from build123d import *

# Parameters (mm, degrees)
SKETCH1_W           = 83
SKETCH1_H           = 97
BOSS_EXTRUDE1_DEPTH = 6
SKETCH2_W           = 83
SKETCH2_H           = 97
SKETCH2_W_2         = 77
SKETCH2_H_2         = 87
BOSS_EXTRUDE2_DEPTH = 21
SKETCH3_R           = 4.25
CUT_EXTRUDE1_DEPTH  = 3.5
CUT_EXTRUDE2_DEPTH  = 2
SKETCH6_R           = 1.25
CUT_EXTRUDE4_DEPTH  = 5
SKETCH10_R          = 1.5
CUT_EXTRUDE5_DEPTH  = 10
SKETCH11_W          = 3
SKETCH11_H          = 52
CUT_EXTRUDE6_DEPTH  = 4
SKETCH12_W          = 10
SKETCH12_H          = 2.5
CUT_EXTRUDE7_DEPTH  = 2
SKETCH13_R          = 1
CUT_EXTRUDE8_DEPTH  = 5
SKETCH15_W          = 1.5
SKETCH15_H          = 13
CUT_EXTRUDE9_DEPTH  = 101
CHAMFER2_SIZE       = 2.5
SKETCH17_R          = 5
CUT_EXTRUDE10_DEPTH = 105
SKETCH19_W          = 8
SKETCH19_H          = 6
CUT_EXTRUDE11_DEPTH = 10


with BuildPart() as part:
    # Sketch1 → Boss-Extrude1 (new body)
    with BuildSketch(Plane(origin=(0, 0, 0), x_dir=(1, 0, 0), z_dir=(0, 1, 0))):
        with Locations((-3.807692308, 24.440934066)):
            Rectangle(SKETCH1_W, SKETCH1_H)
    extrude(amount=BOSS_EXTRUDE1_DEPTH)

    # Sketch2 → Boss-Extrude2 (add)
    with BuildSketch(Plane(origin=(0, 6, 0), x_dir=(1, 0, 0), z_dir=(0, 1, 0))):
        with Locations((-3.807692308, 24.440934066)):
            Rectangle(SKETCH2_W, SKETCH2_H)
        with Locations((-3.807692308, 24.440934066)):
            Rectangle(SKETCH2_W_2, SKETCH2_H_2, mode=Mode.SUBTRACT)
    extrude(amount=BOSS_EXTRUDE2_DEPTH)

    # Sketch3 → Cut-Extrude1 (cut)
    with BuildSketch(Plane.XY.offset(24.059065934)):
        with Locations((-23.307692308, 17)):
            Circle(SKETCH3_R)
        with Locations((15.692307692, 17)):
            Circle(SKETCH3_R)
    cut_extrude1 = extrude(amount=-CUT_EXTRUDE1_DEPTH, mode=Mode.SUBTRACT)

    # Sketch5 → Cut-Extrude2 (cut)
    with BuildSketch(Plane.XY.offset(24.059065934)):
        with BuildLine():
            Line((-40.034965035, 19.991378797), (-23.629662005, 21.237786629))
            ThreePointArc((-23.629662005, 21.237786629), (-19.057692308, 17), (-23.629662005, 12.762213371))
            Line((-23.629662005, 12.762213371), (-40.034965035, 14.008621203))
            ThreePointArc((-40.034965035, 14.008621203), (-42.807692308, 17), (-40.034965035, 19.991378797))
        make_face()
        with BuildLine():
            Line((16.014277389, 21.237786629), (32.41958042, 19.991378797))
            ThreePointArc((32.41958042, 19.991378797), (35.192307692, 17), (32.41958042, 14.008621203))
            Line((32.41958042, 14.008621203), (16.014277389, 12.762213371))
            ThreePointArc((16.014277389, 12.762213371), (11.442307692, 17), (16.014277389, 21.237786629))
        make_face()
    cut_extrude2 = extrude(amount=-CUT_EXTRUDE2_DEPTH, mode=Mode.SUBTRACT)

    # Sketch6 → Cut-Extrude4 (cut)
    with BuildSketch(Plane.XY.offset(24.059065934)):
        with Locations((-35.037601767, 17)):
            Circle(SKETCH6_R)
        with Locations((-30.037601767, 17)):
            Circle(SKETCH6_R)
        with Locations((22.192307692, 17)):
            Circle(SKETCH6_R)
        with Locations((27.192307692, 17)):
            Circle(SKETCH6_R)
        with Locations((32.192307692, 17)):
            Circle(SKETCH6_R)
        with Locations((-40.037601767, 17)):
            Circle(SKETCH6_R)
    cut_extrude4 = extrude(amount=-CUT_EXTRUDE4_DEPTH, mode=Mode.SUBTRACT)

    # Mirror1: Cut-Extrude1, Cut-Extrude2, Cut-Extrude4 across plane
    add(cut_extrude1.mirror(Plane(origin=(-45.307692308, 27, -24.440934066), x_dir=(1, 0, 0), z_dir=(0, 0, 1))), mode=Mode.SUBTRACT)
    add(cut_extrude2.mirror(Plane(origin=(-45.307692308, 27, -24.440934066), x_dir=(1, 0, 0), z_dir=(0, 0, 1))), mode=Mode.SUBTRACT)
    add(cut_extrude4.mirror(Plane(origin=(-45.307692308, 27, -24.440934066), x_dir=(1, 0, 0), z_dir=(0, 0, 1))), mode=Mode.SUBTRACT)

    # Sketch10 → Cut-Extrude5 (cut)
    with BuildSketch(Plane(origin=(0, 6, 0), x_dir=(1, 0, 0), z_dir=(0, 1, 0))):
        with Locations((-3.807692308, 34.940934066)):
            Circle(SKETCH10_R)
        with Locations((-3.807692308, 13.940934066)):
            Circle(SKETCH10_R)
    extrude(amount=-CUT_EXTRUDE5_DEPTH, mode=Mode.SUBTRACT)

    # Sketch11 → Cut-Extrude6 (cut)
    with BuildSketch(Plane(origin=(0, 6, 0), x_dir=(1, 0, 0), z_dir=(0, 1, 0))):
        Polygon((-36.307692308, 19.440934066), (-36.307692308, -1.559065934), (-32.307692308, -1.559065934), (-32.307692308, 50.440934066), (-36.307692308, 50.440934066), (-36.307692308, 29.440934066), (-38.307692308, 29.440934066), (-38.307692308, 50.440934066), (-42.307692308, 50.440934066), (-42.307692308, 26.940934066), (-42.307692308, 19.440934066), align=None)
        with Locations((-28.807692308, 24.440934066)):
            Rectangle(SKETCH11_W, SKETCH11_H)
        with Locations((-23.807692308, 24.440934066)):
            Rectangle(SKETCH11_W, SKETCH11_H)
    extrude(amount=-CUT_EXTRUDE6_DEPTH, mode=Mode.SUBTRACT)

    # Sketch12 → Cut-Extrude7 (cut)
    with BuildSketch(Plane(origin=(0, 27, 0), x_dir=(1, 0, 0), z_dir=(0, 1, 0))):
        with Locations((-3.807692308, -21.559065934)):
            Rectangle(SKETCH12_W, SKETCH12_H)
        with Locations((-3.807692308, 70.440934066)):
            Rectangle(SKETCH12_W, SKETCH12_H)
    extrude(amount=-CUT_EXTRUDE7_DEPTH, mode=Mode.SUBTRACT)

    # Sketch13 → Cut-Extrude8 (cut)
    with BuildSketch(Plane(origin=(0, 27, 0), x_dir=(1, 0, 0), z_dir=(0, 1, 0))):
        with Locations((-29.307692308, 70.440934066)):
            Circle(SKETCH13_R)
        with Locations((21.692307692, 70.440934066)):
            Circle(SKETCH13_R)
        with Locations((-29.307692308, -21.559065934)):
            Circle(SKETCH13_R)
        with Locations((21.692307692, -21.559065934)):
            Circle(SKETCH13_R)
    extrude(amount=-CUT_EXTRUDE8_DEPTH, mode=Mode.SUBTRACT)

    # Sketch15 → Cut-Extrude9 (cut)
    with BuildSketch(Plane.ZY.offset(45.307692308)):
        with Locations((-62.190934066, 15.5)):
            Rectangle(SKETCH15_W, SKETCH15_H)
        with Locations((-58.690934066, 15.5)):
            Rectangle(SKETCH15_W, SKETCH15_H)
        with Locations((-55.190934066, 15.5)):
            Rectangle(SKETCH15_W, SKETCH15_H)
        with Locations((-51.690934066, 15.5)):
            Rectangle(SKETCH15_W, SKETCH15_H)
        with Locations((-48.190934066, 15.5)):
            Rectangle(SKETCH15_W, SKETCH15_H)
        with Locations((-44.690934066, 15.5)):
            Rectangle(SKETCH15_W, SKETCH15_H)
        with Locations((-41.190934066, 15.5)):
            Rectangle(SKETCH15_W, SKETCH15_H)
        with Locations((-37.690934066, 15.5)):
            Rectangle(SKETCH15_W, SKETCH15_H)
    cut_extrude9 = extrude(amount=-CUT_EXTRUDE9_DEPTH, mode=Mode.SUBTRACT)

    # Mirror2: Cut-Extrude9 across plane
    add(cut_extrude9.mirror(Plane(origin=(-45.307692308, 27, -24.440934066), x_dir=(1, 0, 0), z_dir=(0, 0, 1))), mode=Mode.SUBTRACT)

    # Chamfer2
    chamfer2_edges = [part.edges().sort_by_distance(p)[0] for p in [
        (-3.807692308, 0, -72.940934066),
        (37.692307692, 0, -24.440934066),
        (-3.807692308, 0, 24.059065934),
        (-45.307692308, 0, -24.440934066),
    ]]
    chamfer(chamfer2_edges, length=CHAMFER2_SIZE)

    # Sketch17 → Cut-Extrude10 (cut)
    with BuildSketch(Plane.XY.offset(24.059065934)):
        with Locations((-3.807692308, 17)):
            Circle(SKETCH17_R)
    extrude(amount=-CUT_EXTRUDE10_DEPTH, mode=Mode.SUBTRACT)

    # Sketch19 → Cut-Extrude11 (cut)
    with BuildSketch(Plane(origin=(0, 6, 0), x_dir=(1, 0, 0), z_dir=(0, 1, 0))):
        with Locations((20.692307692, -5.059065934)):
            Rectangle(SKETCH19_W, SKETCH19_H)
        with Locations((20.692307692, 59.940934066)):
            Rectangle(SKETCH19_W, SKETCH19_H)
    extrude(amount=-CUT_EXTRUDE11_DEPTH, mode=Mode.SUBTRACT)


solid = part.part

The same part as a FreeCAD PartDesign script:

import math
import FreeCAD as App
import Part
import Sketcher
from FreeCAD import Vector


def edges_at(feature, points):
    """Names of the edges that pass closest to the given points."""
    edges = feature.Shape.Edges
    near = lambda p: min(range(len(edges)), key=lambda i: edges[i].distToShape(Part.Vertex(*p))[0])
    return sorted({f"Edge{near(p) + 1}" for p in points})


def add_polygon(sketch, points):
    """Adds a closed chain of lines whose ends are joined by coincident constraints."""
    first, n = sketch.GeometryCount, len(points)
    for a, b in zip(points, points[1:] + points[:1]):
        sketch.addGeometry(Part.LineSegment(App.Vector(*a, 0), App.Vector(*b, 0)), False)
    for i in range(n):
        sketch.addConstraint(Sketcher.Constraint("Coincident", first + i, 2, first + (i + 1) % n, 1))

doc = App.newDocument("Part")
params = doc.addObject("Spreadsheet::Sheet", "Params")
for row, (alias, value) in enumerate([
    ("sketch1_width", "83 mm"),
    ("sketch1_height", "97 mm"),
    ("pad1_length", "6 mm"),
    ("sketch2_width", "83 mm"),
    ("sketch2_width2", "77 mm"),
    ("sketch2_height", "97 mm"),
    ("sketch2_height2", "87 mm"),
    ("pad2_length", "21 mm"),
    ("sketch3_diameter", "8.5 mm"),
    ("pocket1_length", "3.5 mm"),
    ("sketch4_radius", "3 mm"),
    ("sketch4_radius2", "4.25 mm"),
    ("pocket2_length", "2 mm"),
    ("sketch5_diameter", "2.5 mm"),
    ("pocket3_length", "5 mm"),
    ("sketch6_diameter", "3 mm"),
    ("pocket4_length", "10 mm"),
    ("sketch7_width", "4 mm"),
    ("sketch7_width2", "2 mm"),
    ("sketch7_width3", "3 mm"),
    ("sketch7_height", "21 mm"),
    ("sketch7_height2", "52 mm"),
    ("pocket5_length", "4 mm"),
    ("sketch8_width", "10 mm"),
    ("sketch8_height", "2.5 mm"),
    ("pocket6_length", "2 mm"),
    ("sketch9_diameter", "2 mm"),
    ("pocket7_length", "5 mm"),
    ("sketch10_width", "13 mm"),
    ("sketch10_height", "1.5 mm"),
    ("pocket8_length", "101 mm"),
    ("chamfer_size", "2.5 mm"),
    ("sketch11_diameter", "10 mm"),
    ("pocket9_length", "105 mm"),
    ("sketch12_width", "8 mm"),
    ("sketch12_height", "6 mm"),
    ("pocket10_length", "10 mm"),
], start=1):
    params.set(f"A{row}", alias)
    params.set(f"B{row}", "=" + value)
    params.setAlias(f"B{row}", alias)

body = doc.addObject("PartDesign::Body", "Body")

sketch1 = body.newObject("Sketcher::SketchObject", "Sketch")
sketch1.AttachmentSupport = (doc.getObject("XZ_Plane"), [""])
sketch1.MapMode = "FlatFace"
add_polygon(sketch1, [(-45, -73), (-45, 24), (38, 24), (38, -73)])
sketch1.addConstraint(Sketcher.Constraint("Vertical", 0))
sketch1.addConstraint(Sketcher.Constraint("Horizontal", 1))
sketch1.addConstraint(Sketcher.Constraint("Vertical", 2))
sketch1.addConstraint(Sketcher.Constraint("Horizontal", 3))
sketch1.addConstraint(Sketcher.Constraint("DistanceX", 1, 1, 1, 2, 83.0))
sketch1.addConstraint(Sketcher.Constraint("DistanceY", 0, 1, 0, 2, 97.0))
sketch1.addConstraint(Sketcher.Constraint("DistanceX", 0, 2, -1, 1, 45.307692))
sketch1.addConstraint(Sketcher.Constraint("DistanceY", -1, 1, 0, 2, 24.059066))
sketch1.setExpression("Constraints[8]", "Params.sketch1_width")
sketch1.setExpression("Constraints[9]", "Params.sketch1_height")
pad1 = body.newObject("PartDesign::Pad", "Pad")
pad1.Profile = sketch1
pad1.setExpression("Length", "Params.pad1_length")
pad1.Reversed = True

sketch2 = body.newObject("Sketcher::SketchObject", "Sketch001")
sketch2.AttachmentSupport = (doc.getObject("XZ_Plane"), [""])
sketch2.MapMode = "FlatFace"
sketch2.AttachmentOffset = App.Placement(Vector(0, 0, -6), App.Rotation())
add_polygon(sketch2, [(-45, -73), (-45, 24), (38, 24), (38, -73)])
add_polygon(sketch2, [(35, 19), (-42, 19), (-42, -68), (35, -68)])
sketch2.addConstraint(Sketcher.Constraint("Vertical", 0))
sketch2.addConstraint(Sketcher.Constraint("Horizontal", 1))
sketch2.addConstraint(Sketcher.Constraint("Vertical", 2))
sketch2.addConstraint(Sketcher.Constraint("Horizontal", 3))
sketch2.addConstraint(Sketcher.Constraint("Horizontal", 4))
sketch2.addConstraint(Sketcher.Constraint("Vertical", 5))
sketch2.addConstraint(Sketcher.Constraint("Horizontal", 6))
sketch2.addConstraint(Sketcher.Constraint("Vertical", 7))
sketch2.addConstraint(Sketcher.Constraint("DistanceX", 1, 1, 1, 2, 83.0))
sketch2.addConstraint(Sketcher.Constraint("DistanceX", 4, 2, 4, 1, 77.0))
sketch2.addConstraint(Sketcher.Constraint("DistanceY", 0, 1, 0, 2, 97.0))
sketch2.addConstraint(Sketcher.Constraint("DistanceY", 5, 2, 5, 1, 87.0))
sketch2.addConstraint(Sketcher.Constraint("DistanceX", 0, 2, 4, 2, 3.0))
sketch2.addConstraint(Sketcher.Constraint("DistanceY", 4, 2, 0, 2, 5.0))
sketch2.addConstraint(Sketcher.Constraint("DistanceX", 0, 2, -1, 1, 45.307692))
sketch2.addConstraint(Sketcher.Constraint("DistanceY", -1, 1, 0, 2, 24.059066))
sketch2.setExpression("Constraints[16]", "Params.sketch2_width")
sketch2.setExpression("Constraints[17]", "Params.sketch2_width2")
sketch2.setExpression("Constraints[18]", "Params.sketch2_height")
sketch2.setExpression("Constraints[19]", "Params.sketch2_height2")
pad2 = body.newObject("PartDesign::Pad", "Pad001")
pad2.Profile = sketch2
pad2.setExpression("Length", "Params.pad2_length")
pad2.Reversed = True

sketch3 = body.newObject("Sketcher::SketchObject", "Sketch002")
sketch3.AttachmentSupport = (doc.getObject("XY_Plane"), [""])
sketch3.MapMode = "FlatFace"
sketch3.AttachmentOffset = App.Placement(Vector(0, 0, 24.059066), App.Rotation())
sketch3.addGeometry(Part.Circle(Vector(-23.3, 17, 0), Vector(0, 0, 1), 4.2), False)
sketch3.addGeometry(Part.Circle(Vector(15.7, 17, 0), Vector(0, 0, 1), 4.2), False)
sketch3.addConstraint(Sketcher.Constraint("Equal", 0, 1))
sketch3.addConstraint(Sketcher.Constraint("Horizontal", 0, 3, 1, 3))
sketch3.addConstraint(Sketcher.Constraint("Diameter", 0, 8.5))
sketch3.addConstraint(Sketcher.Constraint("DistanceY", -1, 1, 0, 3, 17.0))
sketch3.addConstraint(Sketcher.Constraint("DistanceX", 0, 3, 1, 3, 39.0))
sketch3.addConstraint(Sketcher.Constraint("DistanceX", 0, 3, -1, 1, 23.307692))
sketch3.setExpression("Constraints[2]", "Params.sketch3_diameter")
pocket1 = body.newObject("PartDesign::Pocket", "Pocket")
pocket1.Profile = sketch3
pocket1.setExpression("Length", "Params.pocket1_length")

sketch4 = body.newObject("Sketcher::SketchObject", "Sketch003")
sketch4.AttachmentSupport = (doc.getObject("XY_Plane"), [""])
sketch4.MapMode = "FlatFace"
sketch4.AttachmentOffset = App.Placement(Vector(0, 0, 24.059066), App.Rotation())
sketch4.addGeometry(Part.LineSegment(Vector(-23.6, 21.2, 0), Vector(-40, 20, 0)), False)
sketch4.addGeometry(Part.ArcOfCircle(Part.Circle(Vector(-39.8, 17, 0), Vector(0, 0, 1), 3), math.radians(94), math.radians(266)), False)
sketch4.addGeometry(Part.LineSegment(Vector(-40, 14, 0), Vector(-23.6, 12.8, 0)), False)
sketch4.addGeometry(Part.ArcOfCircle(Part.Circle(Vector(-23.3, 17, 0), Vector(0, 0, 1), 4.2), math.radians(-94), math.radians(94)), False)
sketch4.addGeometry(Part.LineSegment(Vector(32.4, 20, 0), Vector(16, 21.2, 0)), False)
sketch4.addGeometry(Part.ArcOfCircle(Part.Circle(Vector(15.7, 17, 0), Vector(0, 0, 1), 4.2), math.radians(86), math.radians(274)), False)
sketch4.addGeometry(Part.LineSegment(Vector(16, 12.8, 0), Vector(32.4, 14, 0)), False)
sketch4.addGeometry(Part.ArcOfCircle(Part.Circle(Vector(32.2, 17, 0), Vector(0, 0, 1), 3), math.radians(-86), math.radians(86)), False)
sketch4.addConstraint(Sketcher.Constraint("Tangent", 0, 2, 1, 1))
sketch4.addConstraint(Sketcher.Constraint("Tangent", 1, 2, 2, 1))
sketch4.addConstraint(Sketcher.Constraint("Tangent", 2, 2, 3, 1))
sketch4.addConstraint(Sketcher.Constraint("Tangent", 3, 2, 0, 1))
sketch4.addConstraint(Sketcher.Constraint("Tangent", 4, 2, 5, 1))
sketch4.addConstraint(Sketcher.Constraint("Tangent", 5, 2, 6, 1))
sketch4.addConstraint(Sketcher.Constraint("Tangent", 6, 2, 7, 1))
sketch4.addConstraint(Sketcher.Constraint("Tangent", 7, 2, 4, 1))
sketch4.addConstraint(Sketcher.Constraint("Equal", 3, 5))
sketch4.addConstraint(Sketcher.Constraint("Equal", 1, 7))
sketch4.addConstraint(Sketcher.Constraint("Parallel", 2, 4))
sketch4.addConstraint(Sketcher.Constraint("Parallel", 0, 6))
sketch4.addConstraint(Sketcher.Constraint("Horizontal", 1, 3, 3, 3))
sketch4.addConstraint(Sketcher.Constraint("Horizontal", 3, 3, 5, 3))
sketch4.addConstraint(Sketcher.Constraint("Radius", 1, 3.0))
sketch4.addConstraint(Sketcher.Constraint("Radius", 3, 4.25))
sketch4.addConstraint(Sketcher.Constraint("DistanceY", -1, 1, 1, 3, 17.0))
sketch4.addConstraint(Sketcher.Constraint("DistanceX", 3, 3, 5, 3, 39.0))
sketch4.addConstraint(Sketcher.Constraint("DistanceX", 1, 3, 7, 3, 72.0))
sketch4.addConstraint(Sketcher.Constraint("DistanceX", -1, 1, 6, 2, 32.41958))
sketch4.setExpression("Constraints[14]", "Params.sketch4_radius")
sketch4.setExpression("Constraints[15]", "Params.sketch4_radius2")
pocket2 = body.newObject("PartDesign::Pocket", "Pocket001")
pocket2.Profile = sketch4
pocket2.setExpression("Length", "Params.pocket2_length")

sketch5 = body.newObject("Sketcher::SketchObject", "Sketch004")
sketch5.AttachmentSupport = (doc.getObject("XY_Plane"), [""])
sketch5.MapMode = "FlatFace"
sketch5.AttachmentOffset = App.Placement(Vector(0, 0, 24.059066), App.Rotation())
sketch5.addGeometry(Part.Circle(Vector(-35, 17, 0), Vector(0, 0, 1), 1.2), False)
sketch5.addGeometry(Part.Circle(Vector(-30, 17, 0), Vector(0, 0, 1), 1.2), False)
sketch5.addGeometry(Part.Circle(Vector(22.2, 17, 0), Vector(0, 0, 1), 1.2), False)
sketch5.addGeometry(Part.Circle(Vector(27.2, 17, 0), Vector(0, 0, 1), 1.2), False)
sketch5.addGeometry(Part.Circle(Vector(32.2, 17, 0), Vector(0, 0, 1), 1.2), False)
sketch5.addGeometry(Part.Circle(Vector(-40, 17, 0), Vector(0, 0, 1), 1.2), False)
sketch5.addConstraint(Sketcher.Constraint("Equal", 0, 1))
sketch5.addConstraint(Sketcher.Constraint("Equal", 1, 2))
sketch5.addConstraint(Sketcher.Constraint("Equal", 2, 3))
sketch5.addConstraint(Sketcher.Constraint("Equal", 3, 4))
sketch5.addConstraint(Sketcher.Constraint("Equal", 4, 5))
sketch5.addConstraint(Sketcher.Constraint("Horizontal", 0, 3, 1, 3))
sketch5.addConstraint(Sketcher.Constraint("Horizontal", 1, 3, 2, 3))
sketch5.addConstraint(Sketcher.Constraint("Horizontal", 2, 3, 3, 3))
sketch5.addConstraint(Sketcher.Constraint("Horizontal", 3, 3, 4, 3))
sketch5.addConstraint(Sketcher.Constraint("Horizontal", 4, 3, 5, 3))
sketch5.addConstraint(Sketcher.Constraint("Diameter", 0, 2.5))
sketch5.addConstraint(Sketcher.Constraint("DistanceY", -1, 1, 0, 3, 17.0))
sketch5.addConstraint(Sketcher.Constraint("DistanceX", 0, 3, 1, 3, 5.0))
sketch5.addConstraint(Sketcher.Constraint("DistanceX", 2, 3, 3, 3, 5.0))
sketch5.addConstraint(Sketcher.Constraint("DistanceX", 3, 3, 4, 3, 5.0))
sketch5.addConstraint(Sketcher.Constraint("DistanceX", 5, 3, 0, 3, 5.0))
sketch5.addConstraint(Sketcher.Constraint("DistanceX", 0, 3, -1, 1, 35.037602))
sketch5.addConstraint(Sketcher.Constraint("DistanceX", 1, 3, 2, 3, 52.229909))
sketch5.setExpression("Constraints[10]", "Params.sketch5_diameter")
pocket3 = body.newObject("PartDesign::Pocket", "Pocket002")
pocket3.Profile = sketch5
pocket3.setExpression("Length", "Params.pocket3_length")
doc.recompute()

datumplane = body.newObject("PartDesign::Plane", "DatumPlane")
datumplane.AttachmentSupport = (doc.getObject("XY_Plane"), [""])
datumplane.MapMode = "FlatFace"
datumplane.AttachmentOffset = App.Placement(Vector(0, 0, -24.440934), App.Rotation())
mirrored = body.newObject("PartDesign::Mirrored", "Mirrored")
mirrored.Originals = [pocket1, pocket2, pocket3]
mirrored.MirrorPlane = (datumplane, [""])
body.Tip = mirrored

sketch6 = body.newObject("Sketcher::SketchObject", "Sketch005")
sketch6.AttachmentSupport = (doc.getObject("XZ_Plane"), [""])
sketch6.MapMode = "FlatFace"
sketch6.AttachmentOffset = App.Placement(Vector(0, 0, -6), App.Rotation())
sketch6.addGeometry(Part.Circle(Vector(-3.8, -34.9, 0), Vector(0, 0, 1), 1.5), False)
sketch6.addGeometry(Part.Circle(Vector(-3.8, -13.9, 0), Vector(0, 0, 1), 1.5), False)
sketch6.addConstraint(Sketcher.Constraint("Equal", 0, 1))
sketch6.addConstraint(Sketcher.Constraint("Vertical", 0, 3, 1, 3))
sketch6.addConstraint(Sketcher.Constraint("Diameter", 0, 3.0))
sketch6.addConstraint(Sketcher.Constraint("DistanceY", 0, 3, 1, 3, 21.0))
sketch6.addConstraint(Sketcher.Constraint("DistanceX", 0, 3, -1, 1, 3.807692))
sketch6.addConstraint(Sketcher.Constraint("DistanceY", 0, 3, -1, 1, 34.940934))
sketch6.setExpression("Constraints[2]", "Params.sketch6_diameter")
pocket4 = body.newObject("PartDesign::Pocket", "Pocket003")
pocket4.Profile = sketch6
pocket4.setExpression("Length", "Params.pocket4_length")
pocket4.Reversed = True

sketch7 = body.newObject("Sketcher::SketchObject", "Sketch006")
sketch7.AttachmentSupport = (doc.getObject("XZ_Plane"), [""])
sketch7.MapMode = "FlatFace"
sketch7.AttachmentOffset = App.Placement(Vector(0, 0, -6), App.Rotation())
add_polygon(sketch7, [(-36.3, -19.4), (-36.3, 1.6), (-32.3, 1.6), (-32.3, -50.4), (-36.3, -50.4), (-36.3, -29.4), (-38.3, -29.4), (-38.3, -50.4), (-42.3, -50.4), (-42.3, -19.4)])
add_polygon(sketch7, [(-30.3, -50.4), (-30.3, 1.6), (-27.3, 1.6), (-27.3, -50.4)])
add_polygon(sketch7, [(-25.3, -50.4), (-25.3, 1.6), (-22.3, 1.6), (-22.3, -50.4)])
sketch7.addConstraint(Sketcher.Constraint("Vertical", 0))
sketch7.addConstraint(Sketcher.Constraint("Horizontal", 1))
sketch7.addConstraint(Sketcher.Constraint("Vertical", 2))
sketch7.addConstraint(Sketcher.Constraint("Horizontal", 3))
sketch7.addConstraint(Sketcher.Constraint("Vertical", 4))
sketch7.addConstraint(Sketcher.Constraint("Horizontal", 5))
sketch7.addConstraint(Sketcher.Constraint("Vertical", 6))
sketch7.addConstraint(Sketcher.Constraint("Horizontal", 7))
sketch7.addConstraint(Sketcher.Constraint("Vertical", 8))
sketch7.addConstraint(Sketcher.Constraint("Horizontal", 9))
sketch7.addConstraint(Sketcher.Constraint("Vertical", 10))
sketch7.addConstraint(Sketcher.Constraint("Horizontal", 11))
sketch7.addConstraint(Sketcher.Constraint("Vertical", 12))
sketch7.addConstraint(Sketcher.Constraint("Horizontal", 13))
sketch7.addConstraint(Sketcher.Constraint("Vertical", 14))
sketch7.addConstraint(Sketcher.Constraint("Horizontal", 15))
sketch7.addConstraint(Sketcher.Constraint("Vertical", 16))
sketch7.addConstraint(Sketcher.Constraint("Horizontal", 17))
sketch7.addConstraint(Sketcher.Constraint("Horizontal", 3, 2, 6, 2))
sketch7.addConstraint(Sketcher.Constraint("Horizontal", 1, 2, 10, 2))
sketch7.addConstraint(Sketcher.Constraint("Horizontal", 7, 2, 12, 2))
sketch7.addConstraint(Sketcher.Constraint("Horizontal", 11, 2, 14, 2))
sketch7.addConstraint(Sketcher.Constraint("Horizontal", 13, 2, 16, 2))
sketch7.addConstraint(Sketcher.Constraint("Vertical", 0, 2, 3, 2))
sketch7.addConstraint(Sketcher.Constraint("Equal", 3, 7))
sketch7.addConstraint(Sketcher.Constraint("Equal", 13, 15))
sketch7.addConstraint(Sketcher.Constraint("Equal", 0, 4))
sketch7.addConstraint(Sketcher.Constraint("DistanceX", 1, 1, 1, 2, 4.0))
sketch7.addConstraint(Sketcher.Constraint("DistanceX", 5, 2, 5, 1, 2.0))
sketch7.addConstraint(Sketcher.Constraint("DistanceX", 11, 1, 11, 2, 3.0))
sketch7.addConstraint(Sketcher.Constraint("DistanceY", 0, 1, 0, 2, 21.0))
sketch7.addConstraint(Sketcher.Constraint("DistanceY", 2, 2, 2, 1, 52.0))
sketch7.addConstraint(Sketcher.Constraint("DistanceX", 1, 2, 10, 2, 2.0))
sketch7.addConstraint(Sketcher.Constraint("DistanceX", 11, 2, 14, 2, 2.0))
sketch7.addConstraint(Sketcher.Constraint("DistanceX", 0, 2, -1, 1, 36.307692))
sketch7.addConstraint(Sketcher.Constraint("DistanceY", -1, 1, 0, 2, 1.559066))
sketch7.setExpression("Constraints[45]", "Params.sketch7_width")
sketch7.setExpression("Constraints[46]", "Params.sketch7_width2")
sketch7.setExpression("Constraints[47]", "Params.sketch7_width3")
sketch7.setExpression("Constraints[48]", "Params.sketch7_height")
sketch7.setExpression("Constraints[49]", "Params.sketch7_height2")
pocket5 = body.newObject("PartDesign::Pocket", "Pocket004")
pocket5.Profile = sketch7
pocket5.setExpression("Length", "Params.pocket5_length")
pocket5.Reversed = True

sketch8 = body.newObject("Sketcher::SketchObject", "Sketch007")
sketch8.AttachmentSupport = (doc.getObject("XZ_Plane"), [""])
sketch8.MapMode = "FlatFace"
sketch8.AttachmentOffset = App.Placement(Vector(0, 0, -27), App.Rotation())
add_polygon(sketch8, [(-8.8, 20.3), (-8.8, 22.8), (1.2, 22.8), (1.2, 20.3)])
add_polygon(sketch8, [(-8.8, -71.7), (-8.8, -69.2), (1.2, -69.2), (1.2, -71.7)])
sketch8.addConstraint(Sketcher.Constraint("Vertical", 0))
sketch8.addConstraint(Sketcher.Constraint("Horizontal", 1))
sketch8.addConstraint(Sketcher.Constraint("Vertical", 2))
sketch8.addConstraint(Sketcher.Constraint("Horizontal", 3))
sketch8.addConstraint(Sketcher.Constraint("Vertical", 4))
sketch8.addConstraint(Sketcher.Constraint("Horizontal", 5))
sketch8.addConstraint(Sketcher.Constraint("Vertical", 6))
sketch8.addConstraint(Sketcher.Constraint("Horizontal", 7))
sketch8.addConstraint(Sketcher.Constraint("Vertical", 3, 2, 4, 2))
sketch8.addConstraint(Sketcher.Constraint("Vertical", 2, 2, 5, 2))
sketch8.addConstraint(Sketcher.Constraint("Equal", 2, 4))
sketch8.addConstraint(Sketcher.Constraint("DistanceX", 1, 1, 1, 2, 10.0))
sketch8.addConstraint(Sketcher.Constraint("DistanceY", 0, 1, 0, 2, 2.5))
sketch8.addConstraint(Sketcher.Constraint("DistanceY", 4, 2, 0, 2, 92.0))
sketch8.addConstraint(Sketcher.Constraint("DistanceX", 0, 2, -1, 1, 8.807692))
sketch8.addConstraint(Sketcher.Constraint("DistanceY", -1, 1, 0, 2, 22.809066))
sketch8.setExpression("Constraints[19]", "Params.sketch8_width")
sketch8.setExpression("Constraints[20]", "Params.sketch8_height")
pocket6 = body.newObject("PartDesign::Pocket", "Pocket005")
pocket6.Profile = sketch8
pocket6.setExpression("Length", "Params.pocket6_length")
pocket6.Reversed = True

sketch9 = body.newObject("Sketcher::SketchObject", "Sketch008")
sketch9.AttachmentSupport = (doc.getObject("XZ_Plane"), [""])
sketch9.MapMode = "FlatFace"
sketch9.AttachmentOffset = App.Placement(Vector(0, 0, -27), App.Rotation())
sketch9.addGeometry(Part.Circle(Vector(-29.3, -70.4, 0), Vector(0, 0, 1), 1), False)
sketch9.addGeometry(Part.Circle(Vector(21.7, -70.4, 0), Vector(0, 0, 1), 1), False)
sketch9.addGeometry(Part.Circle(Vector(-29.3, 21.6, 0), Vector(0, 0, 1), 1), False)
sketch9.addGeometry(Part.Circle(Vector(21.7, 21.6, 0), Vector(0, 0, 1), 1), False)
sketch9.addConstraint(Sketcher.Constraint("Equal", 0, 1))
sketch9.addConstraint(Sketcher.Constraint("Equal", 1, 2))
sketch9.addConstraint(Sketcher.Constraint("Equal", 2, 3))
sketch9.addConstraint(Sketcher.Constraint("Horizontal", 0, 3, 1, 3))
sketch9.addConstraint(Sketcher.Constraint("Horizontal", 2, 3, 3, 3))
sketch9.addConstraint(Sketcher.Constraint("Vertical", 0, 3, 2, 3))
sketch9.addConstraint(Sketcher.Constraint("Vertical", 1, 3, 3, 3))
sketch9.addConstraint(Sketcher.Constraint("Diameter", 0, 2.0))
sketch9.addConstraint(Sketcher.Constraint("DistanceX", 0, 3, 1, 3, 51.0))
sketch9.addConstraint(Sketcher.Constraint("DistanceY", 0, 3, 2, 3, 92.0))
sketch9.addConstraint(Sketcher.Constraint("DistanceX", 0, 3, -1, 1, 29.307692))
sketch9.addConstraint(Sketcher.Constraint("DistanceY", 0, 3, -1, 1, 70.440934))
sketch9.setExpression("Constraints[7]", "Params.sketch9_diameter")
pocket7 = body.newObject("PartDesign::Pocket", "Pocket006")
pocket7.Profile = sketch9
pocket7.setExpression("Length", "Params.pocket7_length")
pocket7.Reversed = True

sketch10 = body.newObject("Sketcher::SketchObject", "Sketch009")
sketch10.AttachmentSupport = (doc.getObject("YZ_Plane"), [""])
sketch10.MapMode = "FlatFace"
sketch10.AttachmentOffset = App.Placement(Vector(0, 0, -45.307692), App.Rotation())
add_polygon(sketch10, [(22, -62.9), (9, -62.9), (9, -61.4), (22, -61.4)])
add_polygon(sketch10, [(22, -59.4), (9, -59.4), (9, -57.9), (22, -57.9)])
add_polygon(sketch10, [(22, -55.9), (9, -55.9), (9, -54.4), (22, -54.4)])
add_polygon(sketch10, [(22, -52.4), (9, -52.4), (9, -50.9), (22, -50.9)])
add_polygon(sketch10, [(22, -48.9), (9, -48.9), (9, -47.4), (22, -47.4)])
add_polygon(sketch10, [(22, -45.4), (9, -45.4), (9, -43.9), (22, -43.9)])
add_polygon(sketch10, [(22, -41.9), (9, -41.9), (9, -40.4), (22, -40.4)])
add_polygon(sketch10, [(22, -38.4), (9, -38.4), (9, -36.9), (22, -36.9)])
sketch10.addConstraint(Sketcher.Constraint("Horizontal", 0))
sketch10.addConstraint(Sketcher.Constraint("Vertical", 1))
sketch10.addConstraint(Sketcher.Constraint("Horizontal", 2))
sketch10.addConstraint(Sketcher.Constraint("Vertical", 3))
sketch10.addConstraint(Sketcher.Constraint("Horizontal", 4))
sketch10.addConstraint(Sketcher.Constraint("Vertical", 5))
sketch10.addConstraint(Sketcher.Constraint("Horizontal", 6))
sketch10.addConstraint(Sketcher.Constraint("Vertical", 7))
sketch10.addConstraint(Sketcher.Constraint("Horizontal", 8))
sketch10.addConstraint(Sketcher.Constraint("Vertical", 9))
sketch10.addConstraint(Sketcher.Constraint("Horizontal", 10))
sketch10.addConstraint(Sketcher.Constraint("Vertical", 11))
sketch10.addConstraint(Sketcher.Constraint("Horizontal", 12))
sketch10.addConstraint(Sketcher.Constraint("Vertical", 13))
sketch10.addConstraint(Sketcher.Constraint("Horizontal", 14))
sketch10.addConstraint(Sketcher.Constraint("Vertical", 15))
sketch10.addConstraint(Sketcher.Constraint("Horizontal", 16))
sketch10.addConstraint(Sketcher.Constraint("Vertical", 17))
sketch10.addConstraint(Sketcher.Constraint("Horizontal", 18))
sketch10.addConstraint(Sketcher.Constraint("Vertical", 19))
sketch10.addConstraint(Sketcher.Constraint("Horizontal", 20))
sketch10.addConstraint(Sketcher.Constraint("Vertical", 21))
sketch10.addConstraint(Sketcher.Constraint("Horizontal", 22))
sketch10.addConstraint(Sketcher.Constraint("Vertical", 23))
sketch10.addConstraint(Sketcher.Constraint("Horizontal", 24))
sketch10.addConstraint(Sketcher.Constraint("Vertical", 25))
sketch10.addConstraint(Sketcher.Constraint("Horizontal", 26))
sketch10.addConstraint(Sketcher.Constraint("Vertical", 27))
sketch10.addConstraint(Sketcher.Constraint("Horizontal", 28))
sketch10.addConstraint(Sketcher.Constraint("Vertical", 29))
sketch10.addConstraint(Sketcher.Constraint("Horizontal", 30))
sketch10.addConstraint(Sketcher.Constraint("Vertical", 31))
sketch10.addConstraint(Sketcher.Constraint("Vertical", 1, 2, 4, 2))
sketch10.addConstraint(Sketcher.Constraint("Vertical", 3, 2, 6, 2))
sketch10.addConstraint(Sketcher.Constraint("Vertical", 5, 2, 8, 2))
sketch10.addConstraint(Sketcher.Constraint("Vertical", 7, 2, 10, 2))
sketch10.addConstraint(Sketcher.Constraint("Vertical", 9, 2, 12, 2))
sketch10.addConstraint(Sketcher.Constraint("Vertical", 11, 2, 14, 2))
sketch10.addConstraint(Sketcher.Constraint("Vertical", 13, 2, 16, 2))
sketch10.addConstraint(Sketcher.Constraint("Vertical", 15, 2, 18, 2))
sketch10.addConstraint(Sketcher.Constraint("Vertical", 17, 2, 20, 2))
sketch10.addConstraint(Sketcher.Constraint("Vertical", 19, 2, 22, 2))
sketch10.addConstraint(Sketcher.Constraint("Vertical", 21, 2, 24, 2))
sketch10.addConstraint(Sketcher.Constraint("Vertical", 23, 2, 26, 2))
sketch10.addConstraint(Sketcher.Constraint("Vertical", 25, 2, 28, 2))
sketch10.addConstraint(Sketcher.Constraint("Vertical", 27, 2, 30, 2))
sketch10.addConstraint(Sketcher.Constraint("Equal", 3, 5))
sketch10.addConstraint(Sketcher.Constraint("Equal", 7, 9))
sketch10.addConstraint(Sketcher.Constraint("Equal", 11, 13))
sketch10.addConstraint(Sketcher.Constraint("Equal", 15, 17))
sketch10.addConstraint(Sketcher.Constraint("Equal", 19, 21))
sketch10.addConstraint(Sketcher.Constraint("Equal", 23, 25))
sketch10.addConstraint(Sketcher.Constraint("Equal", 27, 29))
sketch10.addConstraint(Sketcher.Constraint("DistanceX", 0, 2, 0, 1, 13.0))
sketch10.addConstraint(Sketcher.Constraint("DistanceY", 1, 1, 1, 2, 1.5))
sketch10.addConstraint(Sketcher.Constraint("DistanceX", -1, 1, 0, 2, 9.0))
sketch10.addConstraint(Sketcher.Constraint("DistanceY", 1, 2, 4, 2, 2.0))
sketch10.addConstraint(Sketcher.Constraint("DistanceY", 5, 2, 8, 2, 2.0))
sketch10.addConstraint(Sketcher.Constraint("DistanceY", 9, 2, 12, 2, 2.0))
sketch10.addConstraint(Sketcher.Constraint("DistanceY", 13, 2, 16, 2, 2.0))
sketch10.addConstraint(Sketcher.Constraint("DistanceY", 17, 2, 20, 2, 2.0))
sketch10.addConstraint(Sketcher.Constraint("DistanceY", 21, 2, 24, 2, 2.0))
sketch10.addConstraint(Sketcher.Constraint("DistanceY", 25, 2, 28, 2, 2.0))
sketch10.addConstraint(Sketcher.Constraint("DistanceY", 0, 2, -1, 1, 62.940934))
sketch10.setExpression("Constraints[85]", "Params.sketch10_width")
sketch10.setExpression("Constraints[86]", "Params.sketch10_height")
pocket8 = body.newObject("PartDesign::Pocket", "Pocket007")
pocket8.Profile = sketch10
pocket8.setExpression("Length", "Params.pocket8_length")
pocket8.Reversed = True
doc.recompute()

datumplane2 = body.newObject("PartDesign::Plane", "DatumPlane001")
datumplane2.AttachmentSupport = (doc.getObject("XY_Plane"), [""])
datumplane2.MapMode = "FlatFace"
datumplane2.AttachmentOffset = App.Placement(Vector(0, 0, -24.440934), App.Rotation())
mirrored2 = body.newObject("PartDesign::Mirrored", "Mirrored001")
mirrored2.Originals = [pocket8]
mirrored2.MirrorPlane = (datumplane2, [""])
body.Tip = mirrored2
doc.recompute()

chamfer = body.newObject("PartDesign::Chamfer", "Chamfer")
chamfer.Base = (mirrored2, edges_at(mirrored2, [
    (-3.808, 0, -72.941),
    (37.692, 0, -24.441),
    (-3.808, 0, 24.059),
    (-45.308, 0, -24.441),
]))
chamfer.setExpression("Size", "Params.chamfer_size")

sketch11 = body.newObject("Sketcher::SketchObject", "Sketch010")
sketch11.AttachmentSupport = (doc.getObject("XY_Plane"), [""])
sketch11.MapMode = "FlatFace"
sketch11.AttachmentOffset = App.Placement(Vector(0, 0, 24.059066), App.Rotation())
sketch11.addGeometry(Part.Circle(Vector(-4, 17, 0), Vector(0, 0, 1), 5), False)
sketch11.addConstraint(Sketcher.Constraint("Diameter", 0, 10.0))
sketch11.addConstraint(Sketcher.Constraint("DistanceY", -1, 1, 0, 3, 17.0))
sketch11.addConstraint(Sketcher.Constraint("DistanceX", 0, 3, -1, 1, 3.807692))
sketch11.setExpression("Constraints[0]", "Params.sketch11_diameter")
pocket9 = body.newObject("PartDesign::Pocket", "Pocket008")
pocket9.Profile = sketch11
pocket9.setExpression("Length", "Params.pocket9_length")

sketch12 = body.newObject("Sketcher::SketchObject", "Sketch011")
sketch12.AttachmentSupport = (doc.getObject("XZ_Plane"), [""])
sketch12.MapMode = "FlatFace"
sketch12.AttachmentOffset = App.Placement(Vector(0, 0, -6), App.Rotation())
add_polygon(sketch12, [(17, 2), (17, 8), (25, 8), (25, 2)])
add_polygon(sketch12, [(17, -63), (17, -57), (25, -57), (25, -63)])
sketch12.addConstraint(Sketcher.Constraint("Vertical", 0))
sketch12.addConstraint(Sketcher.Constraint("Horizontal", 1))
sketch12.addConstraint(Sketcher.Constraint("Vertical", 2))
sketch12.addConstraint(Sketcher.Constraint("Horizontal", 3))
sketch12.addConstraint(Sketcher.Constraint("Vertical", 4))
sketch12.addConstraint(Sketcher.Constraint("Horizontal", 5))
sketch12.addConstraint(Sketcher.Constraint("Vertical", 6))
sketch12.addConstraint(Sketcher.Constraint("Horizontal", 7))
sketch12.addConstraint(Sketcher.Constraint("Vertical", 3, 2, 4, 2))
sketch12.addConstraint(Sketcher.Constraint("Vertical", 2, 2, 5, 2))
sketch12.addConstraint(Sketcher.Constraint("Equal", 2, 4))
sketch12.addConstraint(Sketcher.Constraint("DistanceX", 1, 1, 1, 2, 8.0))
sketch12.addConstraint(Sketcher.Constraint("DistanceY", 0, 1, 0, 2, 6.0))
sketch12.addConstraint(Sketcher.Constraint("DistanceY", 4, 2, 3, 2, 59.0))
sketch12.addConstraint(Sketcher.Constraint("DistanceX", -1, 1, 0, 2, 16.692308))
sketch12.addConstraint(Sketcher.Constraint("DistanceY", -1, 1, 0, 2, 8.059066))
sketch12.setExpression("Constraints[19]", "Params.sketch12_width")
sketch12.setExpression("Constraints[20]", "Params.sketch12_height")
pocket10 = body.newObject("PartDesign::Pocket", "Pocket009")
pocket10.Profile = sketch12
pocket10.setExpression("Length", "Params.pocket10_length")
pocket10.Reversed = True

doc.recompute()
